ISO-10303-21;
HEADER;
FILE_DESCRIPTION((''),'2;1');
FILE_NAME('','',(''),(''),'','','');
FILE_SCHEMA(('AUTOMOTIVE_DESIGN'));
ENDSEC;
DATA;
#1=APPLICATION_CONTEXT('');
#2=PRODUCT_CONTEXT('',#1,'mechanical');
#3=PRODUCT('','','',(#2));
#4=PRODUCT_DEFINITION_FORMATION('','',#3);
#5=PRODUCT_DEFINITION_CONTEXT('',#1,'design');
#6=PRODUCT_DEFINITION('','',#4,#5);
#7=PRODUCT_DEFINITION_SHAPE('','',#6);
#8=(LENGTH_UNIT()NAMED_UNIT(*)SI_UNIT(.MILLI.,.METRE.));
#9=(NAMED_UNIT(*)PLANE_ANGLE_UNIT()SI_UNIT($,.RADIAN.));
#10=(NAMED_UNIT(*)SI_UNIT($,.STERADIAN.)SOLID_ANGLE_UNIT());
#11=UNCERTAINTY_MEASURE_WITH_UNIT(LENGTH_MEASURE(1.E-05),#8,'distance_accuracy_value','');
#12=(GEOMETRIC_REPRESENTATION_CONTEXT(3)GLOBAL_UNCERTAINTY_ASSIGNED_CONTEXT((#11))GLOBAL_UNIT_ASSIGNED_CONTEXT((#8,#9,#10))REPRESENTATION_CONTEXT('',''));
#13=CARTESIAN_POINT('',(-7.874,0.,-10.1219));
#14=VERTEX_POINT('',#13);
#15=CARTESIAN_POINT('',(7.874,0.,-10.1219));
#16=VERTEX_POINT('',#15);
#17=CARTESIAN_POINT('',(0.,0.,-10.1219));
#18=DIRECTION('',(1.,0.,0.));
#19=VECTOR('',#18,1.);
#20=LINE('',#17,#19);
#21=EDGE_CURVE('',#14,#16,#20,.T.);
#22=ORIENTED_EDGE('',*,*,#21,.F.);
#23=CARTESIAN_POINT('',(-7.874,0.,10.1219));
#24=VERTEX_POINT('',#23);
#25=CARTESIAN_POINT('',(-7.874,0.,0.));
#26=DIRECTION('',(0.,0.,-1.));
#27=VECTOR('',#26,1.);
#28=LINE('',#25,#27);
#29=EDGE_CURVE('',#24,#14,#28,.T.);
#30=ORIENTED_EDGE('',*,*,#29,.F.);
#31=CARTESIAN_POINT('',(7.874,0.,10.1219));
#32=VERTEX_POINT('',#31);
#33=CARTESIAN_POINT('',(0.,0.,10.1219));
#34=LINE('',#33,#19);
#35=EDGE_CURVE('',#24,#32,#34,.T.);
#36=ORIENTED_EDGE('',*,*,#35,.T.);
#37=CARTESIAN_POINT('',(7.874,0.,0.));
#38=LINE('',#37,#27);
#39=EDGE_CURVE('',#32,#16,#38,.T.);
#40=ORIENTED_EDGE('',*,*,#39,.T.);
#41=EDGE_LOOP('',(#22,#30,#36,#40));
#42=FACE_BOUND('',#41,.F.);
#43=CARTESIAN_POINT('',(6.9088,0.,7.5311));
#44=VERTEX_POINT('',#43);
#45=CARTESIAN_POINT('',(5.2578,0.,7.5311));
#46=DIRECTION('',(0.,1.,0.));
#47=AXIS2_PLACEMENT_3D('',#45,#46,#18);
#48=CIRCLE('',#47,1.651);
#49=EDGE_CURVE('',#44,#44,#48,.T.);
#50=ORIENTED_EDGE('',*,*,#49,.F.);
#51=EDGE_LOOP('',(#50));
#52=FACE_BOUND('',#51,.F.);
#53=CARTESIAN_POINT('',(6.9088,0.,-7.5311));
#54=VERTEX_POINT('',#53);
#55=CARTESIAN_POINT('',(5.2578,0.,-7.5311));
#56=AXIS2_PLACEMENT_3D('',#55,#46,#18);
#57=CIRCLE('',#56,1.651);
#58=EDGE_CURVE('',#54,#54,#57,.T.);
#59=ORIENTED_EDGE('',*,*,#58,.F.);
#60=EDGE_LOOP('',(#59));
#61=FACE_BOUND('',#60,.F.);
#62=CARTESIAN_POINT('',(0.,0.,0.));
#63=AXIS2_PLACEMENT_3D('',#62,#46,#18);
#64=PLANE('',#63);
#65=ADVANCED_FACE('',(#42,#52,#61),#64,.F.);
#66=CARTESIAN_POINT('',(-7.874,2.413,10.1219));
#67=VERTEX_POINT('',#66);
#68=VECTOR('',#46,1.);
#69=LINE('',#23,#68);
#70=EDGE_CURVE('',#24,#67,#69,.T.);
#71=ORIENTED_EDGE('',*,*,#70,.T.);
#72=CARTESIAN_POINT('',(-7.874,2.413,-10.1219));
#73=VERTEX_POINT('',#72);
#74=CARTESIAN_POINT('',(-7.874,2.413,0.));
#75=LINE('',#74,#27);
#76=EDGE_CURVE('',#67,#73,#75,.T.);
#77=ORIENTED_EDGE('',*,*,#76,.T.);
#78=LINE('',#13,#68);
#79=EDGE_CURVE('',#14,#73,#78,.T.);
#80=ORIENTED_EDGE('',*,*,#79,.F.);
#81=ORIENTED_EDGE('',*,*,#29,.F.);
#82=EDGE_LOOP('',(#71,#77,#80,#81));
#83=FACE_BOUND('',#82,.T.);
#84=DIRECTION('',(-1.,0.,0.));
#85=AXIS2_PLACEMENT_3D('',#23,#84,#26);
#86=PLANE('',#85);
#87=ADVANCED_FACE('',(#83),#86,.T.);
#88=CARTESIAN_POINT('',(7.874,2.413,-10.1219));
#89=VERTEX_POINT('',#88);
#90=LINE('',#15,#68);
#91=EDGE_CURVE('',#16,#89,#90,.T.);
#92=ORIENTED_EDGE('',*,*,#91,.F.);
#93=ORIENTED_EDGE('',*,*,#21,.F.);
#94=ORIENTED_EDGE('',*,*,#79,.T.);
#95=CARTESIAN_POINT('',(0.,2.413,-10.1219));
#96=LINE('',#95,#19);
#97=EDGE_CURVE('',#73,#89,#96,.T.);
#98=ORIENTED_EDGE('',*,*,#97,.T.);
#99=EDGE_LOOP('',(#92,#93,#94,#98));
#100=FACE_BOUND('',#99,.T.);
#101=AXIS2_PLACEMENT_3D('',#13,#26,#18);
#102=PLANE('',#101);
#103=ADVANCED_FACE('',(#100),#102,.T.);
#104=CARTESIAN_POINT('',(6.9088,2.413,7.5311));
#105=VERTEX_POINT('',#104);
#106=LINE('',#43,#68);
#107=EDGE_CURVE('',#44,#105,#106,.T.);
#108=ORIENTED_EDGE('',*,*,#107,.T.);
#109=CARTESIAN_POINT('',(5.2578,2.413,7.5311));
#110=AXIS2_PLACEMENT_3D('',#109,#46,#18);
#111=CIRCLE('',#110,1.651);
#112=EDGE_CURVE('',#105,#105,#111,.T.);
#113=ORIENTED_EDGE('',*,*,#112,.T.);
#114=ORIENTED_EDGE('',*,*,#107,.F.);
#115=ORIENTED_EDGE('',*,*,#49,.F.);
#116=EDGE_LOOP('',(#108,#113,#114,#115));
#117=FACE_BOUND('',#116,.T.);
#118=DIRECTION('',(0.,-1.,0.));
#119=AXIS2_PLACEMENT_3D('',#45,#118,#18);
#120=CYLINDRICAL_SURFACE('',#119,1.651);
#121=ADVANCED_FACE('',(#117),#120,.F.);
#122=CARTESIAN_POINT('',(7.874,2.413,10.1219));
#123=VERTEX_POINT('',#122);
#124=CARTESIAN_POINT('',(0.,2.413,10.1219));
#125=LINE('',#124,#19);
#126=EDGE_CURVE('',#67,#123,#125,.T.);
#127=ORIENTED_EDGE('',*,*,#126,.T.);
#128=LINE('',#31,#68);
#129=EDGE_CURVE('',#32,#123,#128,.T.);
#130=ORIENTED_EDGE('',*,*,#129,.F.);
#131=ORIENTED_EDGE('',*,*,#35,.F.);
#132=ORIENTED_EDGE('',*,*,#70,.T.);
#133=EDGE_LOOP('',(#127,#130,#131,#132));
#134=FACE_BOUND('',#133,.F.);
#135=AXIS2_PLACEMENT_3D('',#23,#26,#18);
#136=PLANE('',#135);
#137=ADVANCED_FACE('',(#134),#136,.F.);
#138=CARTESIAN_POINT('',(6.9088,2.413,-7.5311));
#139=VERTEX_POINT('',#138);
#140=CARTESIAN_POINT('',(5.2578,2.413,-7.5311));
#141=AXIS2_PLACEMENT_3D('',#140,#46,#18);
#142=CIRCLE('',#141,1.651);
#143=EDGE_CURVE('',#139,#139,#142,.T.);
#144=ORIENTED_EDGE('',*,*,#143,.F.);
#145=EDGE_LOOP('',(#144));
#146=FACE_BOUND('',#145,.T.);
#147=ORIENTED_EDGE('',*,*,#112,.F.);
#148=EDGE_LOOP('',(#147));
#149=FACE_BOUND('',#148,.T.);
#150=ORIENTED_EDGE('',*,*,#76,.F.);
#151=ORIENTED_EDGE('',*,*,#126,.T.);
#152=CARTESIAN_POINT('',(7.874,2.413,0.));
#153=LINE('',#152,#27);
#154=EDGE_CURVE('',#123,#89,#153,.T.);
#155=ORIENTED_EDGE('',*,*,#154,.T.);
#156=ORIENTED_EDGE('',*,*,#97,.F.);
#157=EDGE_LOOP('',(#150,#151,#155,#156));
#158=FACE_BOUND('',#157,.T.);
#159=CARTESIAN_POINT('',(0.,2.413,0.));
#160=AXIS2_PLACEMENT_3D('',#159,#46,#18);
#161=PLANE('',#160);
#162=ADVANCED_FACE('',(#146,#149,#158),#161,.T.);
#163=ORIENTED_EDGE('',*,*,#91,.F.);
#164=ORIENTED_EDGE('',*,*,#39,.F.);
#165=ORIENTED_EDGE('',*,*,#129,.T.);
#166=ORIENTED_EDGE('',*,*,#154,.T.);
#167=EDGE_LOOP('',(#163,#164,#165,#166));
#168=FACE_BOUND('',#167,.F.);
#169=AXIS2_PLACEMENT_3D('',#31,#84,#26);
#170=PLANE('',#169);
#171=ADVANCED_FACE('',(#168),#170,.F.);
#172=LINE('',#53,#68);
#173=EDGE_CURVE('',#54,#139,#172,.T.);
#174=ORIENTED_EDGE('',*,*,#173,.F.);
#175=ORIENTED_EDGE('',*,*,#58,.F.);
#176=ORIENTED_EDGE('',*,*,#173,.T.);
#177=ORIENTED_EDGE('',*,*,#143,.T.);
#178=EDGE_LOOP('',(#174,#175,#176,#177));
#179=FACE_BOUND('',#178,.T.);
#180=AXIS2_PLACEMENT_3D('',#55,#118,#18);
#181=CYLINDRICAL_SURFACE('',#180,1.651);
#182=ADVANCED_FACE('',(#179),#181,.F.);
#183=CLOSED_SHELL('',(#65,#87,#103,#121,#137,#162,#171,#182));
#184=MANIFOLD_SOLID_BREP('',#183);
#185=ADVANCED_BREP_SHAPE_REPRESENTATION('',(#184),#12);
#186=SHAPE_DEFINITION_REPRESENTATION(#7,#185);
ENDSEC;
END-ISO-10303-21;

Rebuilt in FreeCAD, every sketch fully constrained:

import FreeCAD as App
import Part
import Sketcher

V = App.Vector
Q = App.Units.Quantity


def add_polygon(sketch, points):
    """Adds a closed chain of lines whose ends are joined by coincident constraints."""
    first, n = sketch.GeometryCount, len(points)
    for a, b in zip(points, points[1:] + points[:1]):
        sketch.addGeometry(Part.LineSegment(App.Vector(*a, 0), App.Vector(*b, 0)), False)
    for i in range(n):
        sketch.addConstraint(Sketcher.Constraint("Coincident", first + i, 2, first + (i + 1) % n, 1))

doc = App.newDocument("Part")
params = doc.addObject("Spreadsheet::Sheet", "Params")
for row, (alias, value) in enumerate([
    ("sketch1_diameter", "0.13 in"),
    ("sketch1_width", "0.62 in"),
    ("sketch1_height", "0.797 in"),
    ("pad1_length", "0.095 in"),
], start=1):
    params.set(f"A{row}", alias)
    params.set(f"B{row}", "=" + value)
    params.setAlias(f"B{row}", alias)

body = doc.addObject("PartDesign::Body", "Body")

# Sketch on XZ plane
sketch1 = body.newObject("Sketcher::SketchObject", "Sketch")
sketch1.AttachmentSupport = (doc.getObject("XZ_Plane"), [""])
sketch1.MapMode = "FlatFace"
add_polygon(sketch1, [(-7.9, -10.1), (-7.9, 10.1), (7.9, 10.1), (7.9, -10.1)])  # lines 0-3
sketch1.addGeometry(Part.Circle(V(5.3, 7.5, 0), V(0, 0, 1), 1.7), False)  # 4
sketch1.addGeometry(Part.Circle(V(5.3, -7.5, 0), V(0, 0, 1), 1.7), False)  # 5
sketch1.addConstraint([
    Sketcher.Constraint("Vertical", 0),
    Sketcher.Constraint("Horizontal", 1),
    Sketcher.Constraint("Vertical", 2),
    Sketcher.Constraint("Horizontal", 3),
    Sketcher.Constraint("Equal", 4, 5),
    Sketcher.Constraint("Symmetric", 0, 2, 2, 2, -1, 1),
    Sketcher.Constraint("Symmetric", 4, 3, 5, 3, -1),
    Sketcher.Constraint("Diameter", 4, Q("0.13 in")),
    Sketcher.Constraint("DistanceX", 1, 1, 1, 2, Q("0.62 in")),
    Sketcher.Constraint("DistanceY", 0, 1, 0, 2, Q("0.797 in")),
    Sketcher.Constraint("DistanceX", -1, 1, 4, 3, Q("0.207 in")),
    Sketcher.Constraint("DistanceY", 5, 3, 4, 3, Q("0.593 in")),
])
sketch1.setExpression("Constraints[11]", "Params.sketch1_diameter")
sketch1.setExpression("Constraints[12]", "Params.sketch1_width")
sketch1.setExpression("Constraints[13]", "Params.sketch1_height")
pad1 = body.newObject("PartDesign::Pad", "Pad")
pad1.Profile = sketch1
pad1.setExpression("Length", "Params.pad1_length")
pad1.Reversed = True

doc.recompute()
